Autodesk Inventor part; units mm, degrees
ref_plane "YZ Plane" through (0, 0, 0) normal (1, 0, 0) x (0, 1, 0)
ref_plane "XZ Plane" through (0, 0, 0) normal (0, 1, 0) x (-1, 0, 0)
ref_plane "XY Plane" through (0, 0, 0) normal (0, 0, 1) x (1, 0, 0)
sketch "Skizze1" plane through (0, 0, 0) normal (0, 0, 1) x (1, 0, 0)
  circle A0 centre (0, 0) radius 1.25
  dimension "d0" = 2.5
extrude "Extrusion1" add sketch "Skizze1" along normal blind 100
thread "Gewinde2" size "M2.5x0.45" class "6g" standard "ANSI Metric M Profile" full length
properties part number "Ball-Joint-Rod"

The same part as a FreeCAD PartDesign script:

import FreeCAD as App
import Part
import Sketcher
from FreeCAD import Vector
Q = App.Units.Quantity

doc = App.newDocument("Part")
body = doc.addObject("PartDesign::Body", "Body")

sketch1 = body.newObject("Sketcher::SketchObject", "Sketch")
sketch1.AttachmentSupport = (doc.getObject("XY_Plane"), [""])
sketch1.MapMode = "FlatFace"
sketch1.addGeometry(Part.Circle(Vector(0, 0, 0), Vector(0, 0, 1), 1.2), False)
sketch1.addConstraint([
    Sketcher.Constraint("Coincident", 0, 3, -1, 1),
    Sketcher.Constraint("Diameter", 0, Q("2.5 mm")),
])
pad1 = body.newObject("PartDesign::Pad", "Pad")
pad1.Profile = sketch1
pad1.Length = 100

doc.recompute()
